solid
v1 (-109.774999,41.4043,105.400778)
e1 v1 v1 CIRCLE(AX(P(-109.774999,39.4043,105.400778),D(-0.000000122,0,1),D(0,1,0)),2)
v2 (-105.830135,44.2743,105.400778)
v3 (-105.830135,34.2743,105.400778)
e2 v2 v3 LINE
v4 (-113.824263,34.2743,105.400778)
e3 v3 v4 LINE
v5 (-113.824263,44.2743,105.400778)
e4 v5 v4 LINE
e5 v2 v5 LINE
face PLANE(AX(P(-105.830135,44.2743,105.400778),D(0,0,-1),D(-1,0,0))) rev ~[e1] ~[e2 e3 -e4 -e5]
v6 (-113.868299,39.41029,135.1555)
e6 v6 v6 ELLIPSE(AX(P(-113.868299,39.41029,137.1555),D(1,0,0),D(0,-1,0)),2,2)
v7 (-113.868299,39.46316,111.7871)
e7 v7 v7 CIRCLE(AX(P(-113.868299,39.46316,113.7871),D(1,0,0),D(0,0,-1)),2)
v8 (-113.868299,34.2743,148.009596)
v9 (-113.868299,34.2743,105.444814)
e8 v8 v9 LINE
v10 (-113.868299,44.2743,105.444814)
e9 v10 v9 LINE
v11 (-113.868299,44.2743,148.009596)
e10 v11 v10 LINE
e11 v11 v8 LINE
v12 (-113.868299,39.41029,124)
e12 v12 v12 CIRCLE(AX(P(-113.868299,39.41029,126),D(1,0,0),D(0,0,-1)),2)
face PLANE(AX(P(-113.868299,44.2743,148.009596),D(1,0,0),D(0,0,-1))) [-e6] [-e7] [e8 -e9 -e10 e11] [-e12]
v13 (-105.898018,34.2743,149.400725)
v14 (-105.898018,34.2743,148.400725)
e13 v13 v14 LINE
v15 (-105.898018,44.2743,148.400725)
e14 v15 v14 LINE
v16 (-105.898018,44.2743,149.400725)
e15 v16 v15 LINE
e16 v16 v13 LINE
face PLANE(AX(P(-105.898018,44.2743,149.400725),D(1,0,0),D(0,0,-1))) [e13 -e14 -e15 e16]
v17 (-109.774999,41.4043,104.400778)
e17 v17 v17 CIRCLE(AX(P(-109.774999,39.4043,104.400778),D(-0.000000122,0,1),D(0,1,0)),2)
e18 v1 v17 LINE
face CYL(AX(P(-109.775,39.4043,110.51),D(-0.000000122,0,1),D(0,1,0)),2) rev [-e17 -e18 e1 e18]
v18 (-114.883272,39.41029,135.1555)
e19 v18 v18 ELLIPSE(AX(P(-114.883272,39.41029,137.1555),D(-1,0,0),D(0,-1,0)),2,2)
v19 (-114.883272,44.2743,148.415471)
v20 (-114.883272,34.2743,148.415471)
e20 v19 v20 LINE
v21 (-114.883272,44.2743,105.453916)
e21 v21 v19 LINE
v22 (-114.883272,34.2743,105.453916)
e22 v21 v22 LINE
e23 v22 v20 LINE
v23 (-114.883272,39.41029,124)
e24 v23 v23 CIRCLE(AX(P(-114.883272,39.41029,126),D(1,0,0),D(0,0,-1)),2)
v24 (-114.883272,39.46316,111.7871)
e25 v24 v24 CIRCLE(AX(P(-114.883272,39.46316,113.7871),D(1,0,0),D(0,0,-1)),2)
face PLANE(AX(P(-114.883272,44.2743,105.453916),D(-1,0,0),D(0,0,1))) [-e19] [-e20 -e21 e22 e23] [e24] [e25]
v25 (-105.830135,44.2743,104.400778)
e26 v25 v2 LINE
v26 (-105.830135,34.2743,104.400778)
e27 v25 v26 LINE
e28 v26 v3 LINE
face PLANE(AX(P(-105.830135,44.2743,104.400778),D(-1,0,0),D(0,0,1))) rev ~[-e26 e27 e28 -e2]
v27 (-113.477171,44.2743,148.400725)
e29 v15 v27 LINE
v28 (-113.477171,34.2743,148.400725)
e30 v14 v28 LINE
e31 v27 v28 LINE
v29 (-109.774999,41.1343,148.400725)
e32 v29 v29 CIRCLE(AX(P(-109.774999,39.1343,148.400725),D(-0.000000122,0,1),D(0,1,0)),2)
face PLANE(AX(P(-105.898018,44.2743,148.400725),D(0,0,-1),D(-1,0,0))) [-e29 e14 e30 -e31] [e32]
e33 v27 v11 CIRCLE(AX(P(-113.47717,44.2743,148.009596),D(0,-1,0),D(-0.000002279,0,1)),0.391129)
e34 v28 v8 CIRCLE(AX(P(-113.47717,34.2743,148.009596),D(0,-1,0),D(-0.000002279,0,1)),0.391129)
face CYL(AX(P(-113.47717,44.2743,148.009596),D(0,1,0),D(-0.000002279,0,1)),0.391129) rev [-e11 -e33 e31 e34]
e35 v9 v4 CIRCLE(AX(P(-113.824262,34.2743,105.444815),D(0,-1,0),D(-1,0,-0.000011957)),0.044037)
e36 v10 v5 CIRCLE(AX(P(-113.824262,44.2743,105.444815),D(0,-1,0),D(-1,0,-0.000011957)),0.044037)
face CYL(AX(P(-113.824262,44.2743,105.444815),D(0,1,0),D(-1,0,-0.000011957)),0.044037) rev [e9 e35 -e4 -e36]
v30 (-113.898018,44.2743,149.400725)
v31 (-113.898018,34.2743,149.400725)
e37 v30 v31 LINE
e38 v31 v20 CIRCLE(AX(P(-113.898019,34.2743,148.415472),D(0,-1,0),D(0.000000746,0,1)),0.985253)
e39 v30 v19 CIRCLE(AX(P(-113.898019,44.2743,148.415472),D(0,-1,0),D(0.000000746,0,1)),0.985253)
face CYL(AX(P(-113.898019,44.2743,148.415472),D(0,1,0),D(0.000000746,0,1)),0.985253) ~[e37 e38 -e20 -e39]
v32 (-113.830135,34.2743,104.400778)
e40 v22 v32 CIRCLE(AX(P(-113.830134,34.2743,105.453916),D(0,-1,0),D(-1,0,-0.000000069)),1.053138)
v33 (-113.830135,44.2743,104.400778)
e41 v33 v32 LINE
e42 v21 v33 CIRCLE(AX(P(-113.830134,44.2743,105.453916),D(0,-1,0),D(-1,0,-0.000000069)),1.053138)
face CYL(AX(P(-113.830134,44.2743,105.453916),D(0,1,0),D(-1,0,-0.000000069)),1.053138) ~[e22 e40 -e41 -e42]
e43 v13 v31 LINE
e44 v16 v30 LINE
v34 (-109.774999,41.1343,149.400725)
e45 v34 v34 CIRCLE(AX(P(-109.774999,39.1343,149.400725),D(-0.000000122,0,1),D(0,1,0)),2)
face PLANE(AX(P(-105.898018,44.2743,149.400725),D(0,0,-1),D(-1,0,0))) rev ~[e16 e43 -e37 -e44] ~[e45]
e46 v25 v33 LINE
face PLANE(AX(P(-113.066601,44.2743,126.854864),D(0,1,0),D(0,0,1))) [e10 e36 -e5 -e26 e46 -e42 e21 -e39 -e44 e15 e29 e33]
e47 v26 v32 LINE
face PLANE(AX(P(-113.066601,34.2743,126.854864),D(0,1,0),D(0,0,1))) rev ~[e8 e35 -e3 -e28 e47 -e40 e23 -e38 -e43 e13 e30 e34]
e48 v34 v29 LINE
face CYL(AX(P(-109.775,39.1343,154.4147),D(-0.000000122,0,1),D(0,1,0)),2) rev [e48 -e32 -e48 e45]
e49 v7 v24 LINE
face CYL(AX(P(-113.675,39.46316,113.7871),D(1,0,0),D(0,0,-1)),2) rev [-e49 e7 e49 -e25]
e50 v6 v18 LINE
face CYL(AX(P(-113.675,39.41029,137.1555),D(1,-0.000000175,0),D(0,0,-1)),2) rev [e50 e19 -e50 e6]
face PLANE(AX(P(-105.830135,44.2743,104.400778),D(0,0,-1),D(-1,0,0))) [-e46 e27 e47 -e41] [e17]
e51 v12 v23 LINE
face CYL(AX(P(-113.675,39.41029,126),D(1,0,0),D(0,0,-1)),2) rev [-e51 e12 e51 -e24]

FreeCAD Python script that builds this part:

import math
import FreeCAD as App
import Part
import Sketcher

V = App.Vector
Q = App.Units.Quantity

doc = App.newDocument("Part")
body = doc.addObject("PartDesign::Body", "Body")

# Sketch on XY plane
sketch1 = doc.addObject("Sketcher::SketchObject", "Sketch")
body.addObject(sketch1)
sketch1.AttachmentSupport = (doc.XY_Plane, [""])
sketch1.MapMode = "FlatFace"
sketch1.addGeometry(Part.Circle(V(0, 0, 0), V(0, 0, 1), 2), False)
sketch1.addConstraint([
    Sketcher.Constraint("Coincident", 0, 3, -1, 1),
    Sketcher.Constraint("Diameter", 0, Q("4 mm")),
])
pad1 = doc.addObject("PartDesign::Pad", "Pad")
body.addObject(pad1)
pad1.Profile = sketch1
pad1.Length = 10
body2 = doc.addObject("PartDesign::Body", "Body001")
doc.recompute()

body.Placement = App.Placement(V(0, 0, 0), App.Rotation(V(0, 1, 0), 90))
boolean = doc.addObject("PartDesign::Boolean", "Boolean")
body2.addObject(boolean)
boolean.Type = "Fuse"
boolean.addObjects([body])
body3 = doc.addObject("PartDesign::Body", "Body002")
doc.recompute()

body2.Placement = App.Placement(V(15.49, 3.9, 4.87), App.Rotation(V(0, 0, 1), 0.000007))
boolean2 = doc.addObject("PartDesign::Boolean", "Boolean001")
body3.addObject(boolean2)
boolean2.Type = "Fuse"
boolean2.addObjects([body2])
body4 = doc.addObject("PartDesign::Body", "Body003")

# Sketch on XY plane
sketch2 = doc.addObject("Sketcher::SketchObject", "Sketch001")
body4.addObject(sketch2)
sketch2.AttachmentSupport = (doc.getObject("XY_Plane003"), [""])
sketch2.MapMode = "FlatFace"
sketch2.addGeometry(Part.Circle(V(0, 0, 0), V(0, 0, 1), 2), False)
sketch2.addConstraint([
    Sketcher.Constraint("Coincident", 0, 3, -1, 1),
    Sketcher.Constraint("Diameter", 0, Q("4 mm")),
])
pad2 = doc.addObject("PartDesign::Pad", "Pad001")
body4.addObject(pad2)
pad2.Profile = sketch2
pad2.Length = 10
body5 = doc.addObject("PartDesign::Body", "Body004")
doc.recompute()

body4.Placement = App.Placement(V(0, 0, 0), App.Rotation(V(0, 1, 0), 90))
boolean3 = doc.addObject("PartDesign::Boolean", "Boolean002")
body5.addObject(boolean3)
boolean3.Type = "Fuse"
boolean3.addObjects([body4])
body6 = doc.addObject("PartDesign::Body", "Body005")
doc.recompute()

body5.Placement = App.Placement(V(-28.4147, 3.9, 5.14), App.Rotation(V(0, 0, 1), 0.000007))
boolean4 = doc.addObject("PartDesign::Boolean", "Boolean003")
body6.addObject(boolean4)
boolean4.Type = "Fuse"
boolean4.addObjects([body5])
body7 = doc.addObject("PartDesign::Body", "Body006")

# Sketch on XY plane
sketch3 = doc.addObject("Sketcher::SketchObject", "Sketch002")
body7.addObject(sketch3)
sketch3.AttachmentSupport = (doc.getObject("XY_Plane006"), [""])
sketch3.MapMode = "FlatFace"
sketch3.addGeometry(Part.Circle(V(0, 0, 0), V(0, 0, 1), 2), False)
sketch3.addConstraint([
    Sketcher.Constraint("Coincident", 0, 3, -1, 1),
    Sketcher.Constraint("Diameter", 0, Q("4 mm")),
])
pad3 = doc.addObject("PartDesign::Pad", "Pad002")
body7.addObject(pad3)
pad3.Profile = sketch3
pad3.Length = 2
body8 = doc.addObject("PartDesign::Body", "Body007")
doc.recompute()

body7.Placement = App.Placement(V(0, 0, 0), App.Rotation(V(1, 0, 0), 271.492946))
boolean5 = doc.addObject("PartDesign::Boolean", "Boolean004")
body8.addObject(boolean5)
boolean5.Type = "Fuse"
boolean5.addObjects([body7])
body9 = doc.addObject("PartDesign::Body", "Body008")
doc.recompute()

body8.Placement = App.Placement(V(0, 0, 0), App.Rotation(V(0, 1, 0), 272.98249))
boolean6 = doc.addObject("PartDesign::Boolean", "Boolean005")
body9.addObject(boolean6)
boolean6.Type = "Fuse"
boolean6.addObjects([body8])
body10 = doc.addObject("PartDesign::Body", "Body009")
doc.recompute()

body9.Placement = App.Placement(V(-26, 5.29, 4.9), App.Rotation(V(0, 0, 1), 267.755985))
boolean7 = doc.addObject("PartDesign::Boolean", "Boolean006")
body10.addObject(boolean7)
boolean7.Type = "Fuse"
boolean7.addObjects([body9])
body11 = doc.addObject("PartDesign::Body", "Body010")

# Sketch on XY plane
sketch4 = doc.addObject("Sketcher::SketchObject", "Sketch003")
body11.addObject(sketch4)
sketch4.AttachmentSupport = (doc.getObject("XY_Plane010"), [""])
sketch4.MapMode = "FlatFace"
sketch4.addGeometry(Part.Circle(V(0, 0, 0), V(0, 0, 1), 2), False)
sketch4.addConstraint([
    Sketcher.Constraint("Coincident", 0, 3, -1, 1),
    Sketcher.Constraint("Diameter", 0, Q("4 mm")),
])
pad4 = doc.addObject("PartDesign::Pad", "Pad003")
body11.addObject(pad4)
pad4.Profile = sketch4
pad4.Length = 2
body12 = doc.addObject("PartDesign::Body", "Body011")
doc.recompute()

body11.Placement = App.Placement(V(-11.1555, 0, 4.86401), App.Rotation(V(1, 0, 0), 90.00001))
boolean8 = doc.addObject("PartDesign::Boolean", "Boolean007")
body12.addObject(boolean8)
boolean8.Type = "Fuse"
boolean8.addObjects([body11])
body13 = doc.addObject("PartDesign::Body", "Body012")

# Sketch on XY plane
sketch5 = doc.addObject("Sketcher::SketchObject", "Sketch004")
body13.addObject(sketch5)
sketch5.AttachmentSupport = (doc.getObject("XY_Plane012"), [""])
sketch5.MapMode = "FlatFace"
sketch5.addGeometry(Part.Circle(V(0, 0, 0), V(0, 0, 1), 2), False)
sketch5.addConstraint([
    Sketcher.Constraint("Coincident", 0, 3, -1, 1),
    Sketcher.Constraint("Diameter", 0, Q("4 mm")),
])
pad5 = doc.addObject("PartDesign::Pad", "Pad004")
body13.addObject(pad5)
pad5.Profile = sketch5
pad5.Length = 2
body14 = doc.addObject("PartDesign::Body", "Body013")
doc.recompute()

body13.Placement = App.Placement(V(0, 0, 0), App.Rotation(V(1, 0, 0), 90))
boolean9 = doc.addObject("PartDesign::Boolean", "Boolean008")
body14.addObject(boolean9)
boolean9.Type = "Fuse"
boolean9.addObjects([body13])
body15 = doc.addObject("PartDesign::Body", "Body014")
doc.recompute()

body14.Placement = App.Placement(V(0, 0, 4.86401), App.Rotation(V(0, 0, 1), 0))
boolean10 = doc.addObject("PartDesign::Boolean", "Boolean009")
body15.addObject(boolean10)
boolean10.Type = "Fuse"
boolean10.addObjects([body14])
body16 = doc.addObject("PartDesign::Body", "Body015")

# Sketch on XY plane
sketch6 = doc.addObject("Sketcher::SketchObject", "Sketch005")
body16.addObject(sketch6)
sketch6.AttachmentSupport = (doc.getObject("XY_Plane015"), [""])
sketch6.MapMode = "FlatFace"
sketch6.addGeometry(Part.Circle(V(0, 0, 0), V(0, 0, 1), 2), False)
sketch6.addConstraint([
    Sketcher.Constraint("Coincident", 0, 3, -1, 1),
    Sketcher.Constraint("Diameter", 0, Q("4 mm")),
])
pad6 = doc.addObject("PartDesign::Pad", "Pad005")
body16.addObject(pad6)
pad6.Profile = sketch6
pad6.Length = 2
body17 = doc.addObject("PartDesign::Body", "Body016")
doc.recompute()

body16.Placement = App.Placement(V(0, 0, 0), App.Rotation(V(1, 0, 0), 90))
boolean11 = doc.addObject("PartDesign::Boolean", "Boolean010")
body17.addObject(boolean11)
boolean11.Type = "Fuse"
boolean11.addObjects([body16])
body18 = doc.addObject("PartDesign::Body", "Body017")
doc.recompute()

body17.Placement = App.Placement(V(12.2129, 0, 4.81114), App.Rotation(V(0, 0, 1), 0))
boolean12 = doc.addObject("PartDesign::Boolean", "Boolean011")
body18.addObject(boolean12)
boolean12.Type = "Fuse"
boolean12.addObjects([body17])
body19 = doc.addObject("PartDesign::Body", "Body018")

# Sketch on XY plane
sketch7 = doc.addObject("Sketcher::SketchObject", "Sketch006")
body19.addObject(sketch7)
sketch7.AttachmentSupport = (doc.getObject("XY_Plane018"), [""])
sketch7.MapMode = "FlatFace"
sketch7.addGeometry(Part.Circle(V(0, 0, 0), V(0, 0, 1), 2), False)
sketch7.addConstraint([
    Sketcher.Constraint("Coincident", 0, 3, -1, 1),
    Sketcher.Constraint("Diameter", 0, Q("4 mm")),
])
pad7 = doc.addObject("PartDesign::Pad", "Pad006")
body19.addObject(pad7)
pad7.Profile = sketch7
pad7.Length = 2
body20 = doc.addObject("PartDesign::Body", "Body019")
doc.recompute()

body19.Placement = App.Placement(V(0, 0, 0), App.Rotation(V(1, 0, 0), 271.492946))
boolean13 = doc.addObject("PartDesign::Boolean", "Boolean012")
body20.addObject(boolean13)
boolean13.Type = "Fuse"
boolean13.addObjects([body19])
body21 = doc.addObject("PartDesign::Body", "Body020")
doc.recompute()

body20.Placement = App.Placement(V(0, 0, 0), App.Rotation(V(0, 1, 0), 272.98249))
boolean14 = doc.addObject("PartDesign::Boolean", "Boolean013")
body21.addObject(boolean14)
boolean14.Type = "Fuse"
boolean14.addObjects([body20])
body22 = doc.addObject("PartDesign::Body", "Body021")
doc.recompute()

body21.Placement = App.Placement(V(25, 5.38, 4.9), App.Rotation(V(0, 0, 1), 267.755985))
boolean15 = doc.addObject("PartDesign::Boolean", "Boolean014")
body22.addObject(boolean15)
boolean15.Type = "Fuse"
boolean15.addObjects([body21])
body23 = doc.addObject("PartDesign::Body", "Body022")

# Sketch on XY plane
sketch8 = doc.addObject("Sketcher::SketchObject", "Sketch007")
body23.addObject(sketch8)
sketch8.AttachmentSupport = (doc.getObject("XY_Plane022"), [""])
sketch8.MapMode = "FlatFace"
sketch8.addGeometry([
    Part.LineSegment(V(-22.415, -1.208, 0), V(20.546, -1.208, 0)),  # 0
    Part.ArcOfCircle(Part.Circle(V(20.546, -0.155, 0), V(0, 0, 1), 1.053), math.radians(-90), math.radians(0)),  # 1
    Part.LineSegment(V(21.599, -0.155, 0), V(21.599, 7.845, 0)),  # 2
    Part.LineSegment(V(21.599, 7.845, 0), V(20.599, 7.845, 0)),  # 3
    Part.LineSegment(V(20.599, 7.845, 0), V(20.599, -0.149, 0)),  # 4
    Part.ArcOfCircle(Part.Circle(V(20.555, -0.149, 0), V(0, 0, 1), 0.044), math.radians(-90), math.radians(0)),  # 5
    Part.LineSegment(V(20.555, -0.193, 0), V(-22.01, -0.193, 0)),  # 6
    Part.ArcOfCircle(Part.Circle(V(-22.01, 0.198, 0), V(0, 0, 1), 0.391), math.radians(-180), math.radians(-90)),  # 7
    Part.LineSegment(V(-22.401, 0.198, 0), V(-22.401, 7.777, 0)),  # 8
    Part.LineSegment(V(-22.401, 7.777, 0), V(-23.401, 7.777, 0)),  # 9
    Part.LineSegment(V(-23.401, 7.777, 0), V(-23.401, -0.223, 0)),  # 10
    Part.ArcOfCircle(Part.Circle(V(-22.415, -0.223, 0), V(0, 0, 1), 0.985), math.radians(180), math.radians(270)),  # 11
], False)
sketch8.addConstraint([
    Sketcher.Constraint("Tangent", 0, 2, 1, 1),
    Sketcher.Constraint("Tangent", 1, 2, 2, 1),
    Sketcher.Constraint("Coincident", 2, 2, 3, 1),
    Sketcher.Constraint("Coincident", 3, 2, 4, 1),
    Sketcher.Constraint("Coincident", 4, 2, 5, 2),
    Sketcher.Constraint("Coincident", 5, 1, 6, 1),
    Sketcher.Constraint("Tangent", 6, 2, 7, 2),
    Sketcher.Constraint("Coincident", 7, 1, 8, 1),
    Sketcher.Constraint("Coincident", 8, 2, 9, 1),
    Sketcher.Constraint("Coincident", 9, 2, 10, 1),
    Sketcher.Constraint("Tangent", 10, 2, 11, 1),
    Sketcher.Constraint("Tangent", 11, 2, 0, 1),
    Sketcher.Constraint("Horizontal", 0),
    Sketcher.Constraint("Vertical", 2),
    Sketcher.Constraint("Horizontal", 3),
    Sketcher.Constraint("Vertical", 4),
    Sketcher.Constraint("Horizontal", 6),
    Sketcher.Constraint("Vertical", 8),
    Sketcher.Constraint("Horizontal", 9),
    Sketcher.Constraint("Vertical", 10),
    Sketcher.Constraint("Horizontal", 5, 3, 4, 2),
    Sketcher.Constraint("Equal", 3, 9),
    Sketcher.Constraint("Equal", 2, 10),
    Sketcher.Constraint("DistanceX", 3, 2, 3, 1, Q("1 mm")),
    Sketcher.Constraint("DistanceY", 2, 1, 2, 2, Q("8 mm")),
    Sketcher.Constraint("Radius", 1, Q("1.053138 mm")),
    Sketcher.Constraint("Radius", 7, Q("0.391129 mm")),
    Sketcher.Constraint("Radius", 5, Q("0.044037 mm")),
    Sketcher.Constraint("Radius", 11, Q("0.985253 mm")),
    Sketcher.Constraint("DistanceX", 6, 2, 6, 1, Q("42.564782 mm")),
    Sketcher.Constraint("DistanceY", 4, 2, 4, 1, Q("7.994128 mm")),
    Sketcher.Constraint("DistanceY", 5, 1, -1, 1, Q("0.193299 mm")),
    Sketcher.Constraint("DistanceX", 0, 2, 5, 1, Q("0.009102 mm")),
    Sketcher.Constraint("DistanceY", 11, 2, 7, 1, Q("1.406101 mm")),
    Sketcher.Constraint("DistanceX", 11, 3, -1, 1, Q("22.415472 mm")),
])
pad8 = doc.addObject("PartDesign::Pad", "Pad007")
body23.addObject(pad8)
pad8.Profile = sketch8
pad8.Length = 10
doc.recompute()

boolean16 = doc.addObject("PartDesign::Boolean", "Boolean015")
body23.addObject(boolean16)
boolean16.Type = "Cut"
boolean16.addObjects([body22])
doc.recompute()

boolean17 = doc.addObject("PartDesign::Boolean", "Boolean016")
body23.addObject(boolean17)
boolean17.Type = "Cut"
boolean17.addObjects([body18])
doc.recompute()

boolean18 = doc.addObject("PartDesign::Boolean", "Boolean017")
body23.addObject(boolean18)
boolean18.Type = "Cut"
boolean18.addObjects([body15])
doc.recompute()

boolean19 = doc.addObject("PartDesign::Boolean", "Boolean018")
body23.addObject(boolean19)
boolean19.Type = "Cut"
boolean19.addObjects([body12])
doc.recompute()

boolean20 = doc.addObject("PartDesign::Boolean", "Boolean019")
body23.addObject(boolean20)
boolean20.Type = "Cut"
boolean20.addObjects([body10])
doc.recompute()

boolean21 = doc.addObject("PartDesign::Boolean", "Boolean020")
body23.addObject(boolean21)
boolean21.Type = "Cut"
boolean21.addObjects([body6])
doc.recompute()

boolean22 = doc.addObject("PartDesign::Boolean", "Boolean021")
body23.addObject(boolean22)
boolean22.Type = "Cut"
boolean22.addObjects([body3])
body24 = doc.addObject("PartDesign::Body", "Body023")
doc.recompute()

body23.Placement = App.Placement(V(0, 0, 0), App.Rotation(V(0, 1, 0), 90))
boolean23 = doc.addObject("PartDesign::Boolean", "Boolean022")
body24.addObject(boolean23)
boolean23.Type = "Fuse"
boolean23.addObjects([body23])
body25 = doc.addObject("PartDesign::Body", "Body024")
doc.recompute()

body24.Placement = App.Placement(V(-113.675, 44.2743, 126), App.Rotation(V(0, 0, 1), 270))
boolean24 = doc.addObject("PartDesign::Boolean", "Boolean023")
body25.addObject(boolean24)
boolean24.Type = "Fuse"
boolean24.addObjects([body24])

doc.recompute()
